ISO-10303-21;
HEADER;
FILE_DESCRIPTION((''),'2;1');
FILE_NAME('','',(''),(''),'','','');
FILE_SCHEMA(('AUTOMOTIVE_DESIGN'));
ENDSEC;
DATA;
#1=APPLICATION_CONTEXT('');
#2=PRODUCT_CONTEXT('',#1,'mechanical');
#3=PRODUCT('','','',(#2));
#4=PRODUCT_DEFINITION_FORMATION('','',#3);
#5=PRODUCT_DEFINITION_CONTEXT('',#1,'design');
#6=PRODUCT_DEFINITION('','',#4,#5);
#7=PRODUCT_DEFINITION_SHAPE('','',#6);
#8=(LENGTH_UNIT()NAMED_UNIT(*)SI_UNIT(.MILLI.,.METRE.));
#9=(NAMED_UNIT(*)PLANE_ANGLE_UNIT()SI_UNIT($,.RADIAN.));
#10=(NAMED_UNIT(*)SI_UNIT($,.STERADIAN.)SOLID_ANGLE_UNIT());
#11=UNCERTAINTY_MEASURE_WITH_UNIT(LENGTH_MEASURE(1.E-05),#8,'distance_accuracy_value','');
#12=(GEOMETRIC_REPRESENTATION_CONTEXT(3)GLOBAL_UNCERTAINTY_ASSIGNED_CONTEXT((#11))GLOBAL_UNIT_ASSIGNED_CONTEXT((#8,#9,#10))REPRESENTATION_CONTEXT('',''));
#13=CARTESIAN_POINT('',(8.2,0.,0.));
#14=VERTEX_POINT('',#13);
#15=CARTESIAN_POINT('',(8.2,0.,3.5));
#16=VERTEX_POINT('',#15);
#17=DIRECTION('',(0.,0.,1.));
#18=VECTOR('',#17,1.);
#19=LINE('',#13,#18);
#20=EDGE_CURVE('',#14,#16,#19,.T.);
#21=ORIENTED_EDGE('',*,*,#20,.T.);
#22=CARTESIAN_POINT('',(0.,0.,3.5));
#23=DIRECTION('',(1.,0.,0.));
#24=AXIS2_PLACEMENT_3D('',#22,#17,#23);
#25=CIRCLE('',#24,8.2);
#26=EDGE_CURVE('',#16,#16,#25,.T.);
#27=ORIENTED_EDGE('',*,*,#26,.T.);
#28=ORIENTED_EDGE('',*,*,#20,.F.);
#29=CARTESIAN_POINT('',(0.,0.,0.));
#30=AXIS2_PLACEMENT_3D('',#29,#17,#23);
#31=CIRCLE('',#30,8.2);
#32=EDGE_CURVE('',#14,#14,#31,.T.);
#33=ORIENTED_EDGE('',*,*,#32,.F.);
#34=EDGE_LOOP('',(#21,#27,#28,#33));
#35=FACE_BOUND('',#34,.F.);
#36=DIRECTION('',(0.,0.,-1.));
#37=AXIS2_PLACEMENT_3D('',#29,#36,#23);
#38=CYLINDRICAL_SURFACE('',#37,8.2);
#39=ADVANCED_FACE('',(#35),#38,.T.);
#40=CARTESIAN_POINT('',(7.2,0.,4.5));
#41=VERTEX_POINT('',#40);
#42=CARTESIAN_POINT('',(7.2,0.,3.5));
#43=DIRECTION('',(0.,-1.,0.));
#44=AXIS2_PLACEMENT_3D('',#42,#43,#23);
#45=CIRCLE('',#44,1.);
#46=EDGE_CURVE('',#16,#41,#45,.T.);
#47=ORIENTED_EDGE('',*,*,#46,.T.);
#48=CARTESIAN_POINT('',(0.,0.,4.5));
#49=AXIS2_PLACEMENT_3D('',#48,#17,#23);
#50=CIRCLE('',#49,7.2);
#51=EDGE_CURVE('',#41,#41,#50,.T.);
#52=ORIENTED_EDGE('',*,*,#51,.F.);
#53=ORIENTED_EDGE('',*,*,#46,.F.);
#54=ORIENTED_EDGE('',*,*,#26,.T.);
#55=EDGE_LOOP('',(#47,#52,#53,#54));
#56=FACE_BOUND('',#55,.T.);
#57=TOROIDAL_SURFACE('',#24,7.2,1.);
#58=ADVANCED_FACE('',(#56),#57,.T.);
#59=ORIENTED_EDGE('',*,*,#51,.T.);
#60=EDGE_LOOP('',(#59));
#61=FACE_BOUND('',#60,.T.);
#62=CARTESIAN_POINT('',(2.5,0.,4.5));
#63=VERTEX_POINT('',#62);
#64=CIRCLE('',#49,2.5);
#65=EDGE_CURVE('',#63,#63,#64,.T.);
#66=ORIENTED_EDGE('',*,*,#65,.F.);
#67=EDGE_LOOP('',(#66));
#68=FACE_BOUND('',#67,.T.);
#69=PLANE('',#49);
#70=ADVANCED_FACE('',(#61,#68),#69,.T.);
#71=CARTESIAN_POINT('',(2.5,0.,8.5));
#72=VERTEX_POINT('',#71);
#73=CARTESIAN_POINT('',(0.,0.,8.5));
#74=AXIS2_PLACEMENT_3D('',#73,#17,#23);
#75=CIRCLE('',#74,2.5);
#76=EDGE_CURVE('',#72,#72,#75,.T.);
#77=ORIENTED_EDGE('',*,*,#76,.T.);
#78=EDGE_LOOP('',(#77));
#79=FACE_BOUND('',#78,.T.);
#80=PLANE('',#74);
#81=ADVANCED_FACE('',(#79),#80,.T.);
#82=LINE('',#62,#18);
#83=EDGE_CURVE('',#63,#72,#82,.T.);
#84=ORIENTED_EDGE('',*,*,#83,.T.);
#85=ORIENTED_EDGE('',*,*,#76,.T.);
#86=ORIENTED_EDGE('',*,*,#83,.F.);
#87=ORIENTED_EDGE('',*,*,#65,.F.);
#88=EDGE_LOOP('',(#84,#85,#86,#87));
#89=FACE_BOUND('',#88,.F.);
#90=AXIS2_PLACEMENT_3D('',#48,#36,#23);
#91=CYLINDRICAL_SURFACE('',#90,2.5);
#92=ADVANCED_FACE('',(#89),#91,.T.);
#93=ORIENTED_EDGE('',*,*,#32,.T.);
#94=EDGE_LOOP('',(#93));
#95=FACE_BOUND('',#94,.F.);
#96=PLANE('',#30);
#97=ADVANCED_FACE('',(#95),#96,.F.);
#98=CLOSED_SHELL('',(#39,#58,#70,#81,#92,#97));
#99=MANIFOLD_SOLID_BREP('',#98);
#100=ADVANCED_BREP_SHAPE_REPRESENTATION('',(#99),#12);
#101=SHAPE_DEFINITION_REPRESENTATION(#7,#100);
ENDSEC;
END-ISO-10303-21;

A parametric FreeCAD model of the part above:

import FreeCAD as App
import Part
import Sketcher
Q = App.Units.Quantity


def edges_at(feature, points):
    """Names of the edges that pass closest to the given points."""
    edges = feature.Shape.Edges
    near = lambda p: min(range(len(edges)), key=lambda i: edges[i].distToShape(Part.Vertex(*p))[0])
    return sorted({f"Edge{near(p) + 1}" for p in points})

doc = App.newDocument("Part")
body = doc.addObject("PartDesign::Body", "Body")

sketch1 = body.newObject("Sketcher::SketchObject", "Sketch")
sketch1.AttachmentSupport = (doc.getObject("XY_Plane"), [""])
sketch1.MapMode = "FlatFace"
sketch1.addGeometry(Part.Circle(App.Vector(0, 0, 0), App.Vector(0, 0, 1), 8), False)
sketch1.addConstraint([
    Sketcher.Constraint("Coincident", 0, 3, -1, 1),
    Sketcher.Constraint("Diameter", 0, Q("16.4 mm")),
])
pad1 = body.newObject("PartDesign::Pad", "Pad")
pad1.Profile = sketch1
pad1.Length = 4.5

sketch2 = body.newObject("Sketcher::SketchObject", "Sketch001")
sketch2.AttachmentSupport = (doc.getObject("XY_Plane"), [""])
sketch2.MapMode = "FlatFace"
sketch2.AttachmentOffset = App.Placement(App.Vector(0, 0, 4.5), App.Rotation())
sketch2.addGeometry(Part.Circle(App.Vector(0, 0, 0), App.Vector(0, 0, 1), 2.5), False)
sketch2.addConstraint([
    Sketcher.Constraint("Coincident", 0, 3, -1, 1),
    Sketcher.Constraint("Diameter", 0, Q("5 mm")),
])
pad2 = body.newObject("PartDesign::Pad", "Pad001")
pad2.Profile = sketch2
pad2.Length = 4
doc.recompute()

fillet = body.newObject("PartDesign::Fillet", "Fillet")
fillet.Base = (pad2, edges_at(pad2, [(-8.2, 0, 4.5)]))
fillet.Radius = 1

doc.recompute()
